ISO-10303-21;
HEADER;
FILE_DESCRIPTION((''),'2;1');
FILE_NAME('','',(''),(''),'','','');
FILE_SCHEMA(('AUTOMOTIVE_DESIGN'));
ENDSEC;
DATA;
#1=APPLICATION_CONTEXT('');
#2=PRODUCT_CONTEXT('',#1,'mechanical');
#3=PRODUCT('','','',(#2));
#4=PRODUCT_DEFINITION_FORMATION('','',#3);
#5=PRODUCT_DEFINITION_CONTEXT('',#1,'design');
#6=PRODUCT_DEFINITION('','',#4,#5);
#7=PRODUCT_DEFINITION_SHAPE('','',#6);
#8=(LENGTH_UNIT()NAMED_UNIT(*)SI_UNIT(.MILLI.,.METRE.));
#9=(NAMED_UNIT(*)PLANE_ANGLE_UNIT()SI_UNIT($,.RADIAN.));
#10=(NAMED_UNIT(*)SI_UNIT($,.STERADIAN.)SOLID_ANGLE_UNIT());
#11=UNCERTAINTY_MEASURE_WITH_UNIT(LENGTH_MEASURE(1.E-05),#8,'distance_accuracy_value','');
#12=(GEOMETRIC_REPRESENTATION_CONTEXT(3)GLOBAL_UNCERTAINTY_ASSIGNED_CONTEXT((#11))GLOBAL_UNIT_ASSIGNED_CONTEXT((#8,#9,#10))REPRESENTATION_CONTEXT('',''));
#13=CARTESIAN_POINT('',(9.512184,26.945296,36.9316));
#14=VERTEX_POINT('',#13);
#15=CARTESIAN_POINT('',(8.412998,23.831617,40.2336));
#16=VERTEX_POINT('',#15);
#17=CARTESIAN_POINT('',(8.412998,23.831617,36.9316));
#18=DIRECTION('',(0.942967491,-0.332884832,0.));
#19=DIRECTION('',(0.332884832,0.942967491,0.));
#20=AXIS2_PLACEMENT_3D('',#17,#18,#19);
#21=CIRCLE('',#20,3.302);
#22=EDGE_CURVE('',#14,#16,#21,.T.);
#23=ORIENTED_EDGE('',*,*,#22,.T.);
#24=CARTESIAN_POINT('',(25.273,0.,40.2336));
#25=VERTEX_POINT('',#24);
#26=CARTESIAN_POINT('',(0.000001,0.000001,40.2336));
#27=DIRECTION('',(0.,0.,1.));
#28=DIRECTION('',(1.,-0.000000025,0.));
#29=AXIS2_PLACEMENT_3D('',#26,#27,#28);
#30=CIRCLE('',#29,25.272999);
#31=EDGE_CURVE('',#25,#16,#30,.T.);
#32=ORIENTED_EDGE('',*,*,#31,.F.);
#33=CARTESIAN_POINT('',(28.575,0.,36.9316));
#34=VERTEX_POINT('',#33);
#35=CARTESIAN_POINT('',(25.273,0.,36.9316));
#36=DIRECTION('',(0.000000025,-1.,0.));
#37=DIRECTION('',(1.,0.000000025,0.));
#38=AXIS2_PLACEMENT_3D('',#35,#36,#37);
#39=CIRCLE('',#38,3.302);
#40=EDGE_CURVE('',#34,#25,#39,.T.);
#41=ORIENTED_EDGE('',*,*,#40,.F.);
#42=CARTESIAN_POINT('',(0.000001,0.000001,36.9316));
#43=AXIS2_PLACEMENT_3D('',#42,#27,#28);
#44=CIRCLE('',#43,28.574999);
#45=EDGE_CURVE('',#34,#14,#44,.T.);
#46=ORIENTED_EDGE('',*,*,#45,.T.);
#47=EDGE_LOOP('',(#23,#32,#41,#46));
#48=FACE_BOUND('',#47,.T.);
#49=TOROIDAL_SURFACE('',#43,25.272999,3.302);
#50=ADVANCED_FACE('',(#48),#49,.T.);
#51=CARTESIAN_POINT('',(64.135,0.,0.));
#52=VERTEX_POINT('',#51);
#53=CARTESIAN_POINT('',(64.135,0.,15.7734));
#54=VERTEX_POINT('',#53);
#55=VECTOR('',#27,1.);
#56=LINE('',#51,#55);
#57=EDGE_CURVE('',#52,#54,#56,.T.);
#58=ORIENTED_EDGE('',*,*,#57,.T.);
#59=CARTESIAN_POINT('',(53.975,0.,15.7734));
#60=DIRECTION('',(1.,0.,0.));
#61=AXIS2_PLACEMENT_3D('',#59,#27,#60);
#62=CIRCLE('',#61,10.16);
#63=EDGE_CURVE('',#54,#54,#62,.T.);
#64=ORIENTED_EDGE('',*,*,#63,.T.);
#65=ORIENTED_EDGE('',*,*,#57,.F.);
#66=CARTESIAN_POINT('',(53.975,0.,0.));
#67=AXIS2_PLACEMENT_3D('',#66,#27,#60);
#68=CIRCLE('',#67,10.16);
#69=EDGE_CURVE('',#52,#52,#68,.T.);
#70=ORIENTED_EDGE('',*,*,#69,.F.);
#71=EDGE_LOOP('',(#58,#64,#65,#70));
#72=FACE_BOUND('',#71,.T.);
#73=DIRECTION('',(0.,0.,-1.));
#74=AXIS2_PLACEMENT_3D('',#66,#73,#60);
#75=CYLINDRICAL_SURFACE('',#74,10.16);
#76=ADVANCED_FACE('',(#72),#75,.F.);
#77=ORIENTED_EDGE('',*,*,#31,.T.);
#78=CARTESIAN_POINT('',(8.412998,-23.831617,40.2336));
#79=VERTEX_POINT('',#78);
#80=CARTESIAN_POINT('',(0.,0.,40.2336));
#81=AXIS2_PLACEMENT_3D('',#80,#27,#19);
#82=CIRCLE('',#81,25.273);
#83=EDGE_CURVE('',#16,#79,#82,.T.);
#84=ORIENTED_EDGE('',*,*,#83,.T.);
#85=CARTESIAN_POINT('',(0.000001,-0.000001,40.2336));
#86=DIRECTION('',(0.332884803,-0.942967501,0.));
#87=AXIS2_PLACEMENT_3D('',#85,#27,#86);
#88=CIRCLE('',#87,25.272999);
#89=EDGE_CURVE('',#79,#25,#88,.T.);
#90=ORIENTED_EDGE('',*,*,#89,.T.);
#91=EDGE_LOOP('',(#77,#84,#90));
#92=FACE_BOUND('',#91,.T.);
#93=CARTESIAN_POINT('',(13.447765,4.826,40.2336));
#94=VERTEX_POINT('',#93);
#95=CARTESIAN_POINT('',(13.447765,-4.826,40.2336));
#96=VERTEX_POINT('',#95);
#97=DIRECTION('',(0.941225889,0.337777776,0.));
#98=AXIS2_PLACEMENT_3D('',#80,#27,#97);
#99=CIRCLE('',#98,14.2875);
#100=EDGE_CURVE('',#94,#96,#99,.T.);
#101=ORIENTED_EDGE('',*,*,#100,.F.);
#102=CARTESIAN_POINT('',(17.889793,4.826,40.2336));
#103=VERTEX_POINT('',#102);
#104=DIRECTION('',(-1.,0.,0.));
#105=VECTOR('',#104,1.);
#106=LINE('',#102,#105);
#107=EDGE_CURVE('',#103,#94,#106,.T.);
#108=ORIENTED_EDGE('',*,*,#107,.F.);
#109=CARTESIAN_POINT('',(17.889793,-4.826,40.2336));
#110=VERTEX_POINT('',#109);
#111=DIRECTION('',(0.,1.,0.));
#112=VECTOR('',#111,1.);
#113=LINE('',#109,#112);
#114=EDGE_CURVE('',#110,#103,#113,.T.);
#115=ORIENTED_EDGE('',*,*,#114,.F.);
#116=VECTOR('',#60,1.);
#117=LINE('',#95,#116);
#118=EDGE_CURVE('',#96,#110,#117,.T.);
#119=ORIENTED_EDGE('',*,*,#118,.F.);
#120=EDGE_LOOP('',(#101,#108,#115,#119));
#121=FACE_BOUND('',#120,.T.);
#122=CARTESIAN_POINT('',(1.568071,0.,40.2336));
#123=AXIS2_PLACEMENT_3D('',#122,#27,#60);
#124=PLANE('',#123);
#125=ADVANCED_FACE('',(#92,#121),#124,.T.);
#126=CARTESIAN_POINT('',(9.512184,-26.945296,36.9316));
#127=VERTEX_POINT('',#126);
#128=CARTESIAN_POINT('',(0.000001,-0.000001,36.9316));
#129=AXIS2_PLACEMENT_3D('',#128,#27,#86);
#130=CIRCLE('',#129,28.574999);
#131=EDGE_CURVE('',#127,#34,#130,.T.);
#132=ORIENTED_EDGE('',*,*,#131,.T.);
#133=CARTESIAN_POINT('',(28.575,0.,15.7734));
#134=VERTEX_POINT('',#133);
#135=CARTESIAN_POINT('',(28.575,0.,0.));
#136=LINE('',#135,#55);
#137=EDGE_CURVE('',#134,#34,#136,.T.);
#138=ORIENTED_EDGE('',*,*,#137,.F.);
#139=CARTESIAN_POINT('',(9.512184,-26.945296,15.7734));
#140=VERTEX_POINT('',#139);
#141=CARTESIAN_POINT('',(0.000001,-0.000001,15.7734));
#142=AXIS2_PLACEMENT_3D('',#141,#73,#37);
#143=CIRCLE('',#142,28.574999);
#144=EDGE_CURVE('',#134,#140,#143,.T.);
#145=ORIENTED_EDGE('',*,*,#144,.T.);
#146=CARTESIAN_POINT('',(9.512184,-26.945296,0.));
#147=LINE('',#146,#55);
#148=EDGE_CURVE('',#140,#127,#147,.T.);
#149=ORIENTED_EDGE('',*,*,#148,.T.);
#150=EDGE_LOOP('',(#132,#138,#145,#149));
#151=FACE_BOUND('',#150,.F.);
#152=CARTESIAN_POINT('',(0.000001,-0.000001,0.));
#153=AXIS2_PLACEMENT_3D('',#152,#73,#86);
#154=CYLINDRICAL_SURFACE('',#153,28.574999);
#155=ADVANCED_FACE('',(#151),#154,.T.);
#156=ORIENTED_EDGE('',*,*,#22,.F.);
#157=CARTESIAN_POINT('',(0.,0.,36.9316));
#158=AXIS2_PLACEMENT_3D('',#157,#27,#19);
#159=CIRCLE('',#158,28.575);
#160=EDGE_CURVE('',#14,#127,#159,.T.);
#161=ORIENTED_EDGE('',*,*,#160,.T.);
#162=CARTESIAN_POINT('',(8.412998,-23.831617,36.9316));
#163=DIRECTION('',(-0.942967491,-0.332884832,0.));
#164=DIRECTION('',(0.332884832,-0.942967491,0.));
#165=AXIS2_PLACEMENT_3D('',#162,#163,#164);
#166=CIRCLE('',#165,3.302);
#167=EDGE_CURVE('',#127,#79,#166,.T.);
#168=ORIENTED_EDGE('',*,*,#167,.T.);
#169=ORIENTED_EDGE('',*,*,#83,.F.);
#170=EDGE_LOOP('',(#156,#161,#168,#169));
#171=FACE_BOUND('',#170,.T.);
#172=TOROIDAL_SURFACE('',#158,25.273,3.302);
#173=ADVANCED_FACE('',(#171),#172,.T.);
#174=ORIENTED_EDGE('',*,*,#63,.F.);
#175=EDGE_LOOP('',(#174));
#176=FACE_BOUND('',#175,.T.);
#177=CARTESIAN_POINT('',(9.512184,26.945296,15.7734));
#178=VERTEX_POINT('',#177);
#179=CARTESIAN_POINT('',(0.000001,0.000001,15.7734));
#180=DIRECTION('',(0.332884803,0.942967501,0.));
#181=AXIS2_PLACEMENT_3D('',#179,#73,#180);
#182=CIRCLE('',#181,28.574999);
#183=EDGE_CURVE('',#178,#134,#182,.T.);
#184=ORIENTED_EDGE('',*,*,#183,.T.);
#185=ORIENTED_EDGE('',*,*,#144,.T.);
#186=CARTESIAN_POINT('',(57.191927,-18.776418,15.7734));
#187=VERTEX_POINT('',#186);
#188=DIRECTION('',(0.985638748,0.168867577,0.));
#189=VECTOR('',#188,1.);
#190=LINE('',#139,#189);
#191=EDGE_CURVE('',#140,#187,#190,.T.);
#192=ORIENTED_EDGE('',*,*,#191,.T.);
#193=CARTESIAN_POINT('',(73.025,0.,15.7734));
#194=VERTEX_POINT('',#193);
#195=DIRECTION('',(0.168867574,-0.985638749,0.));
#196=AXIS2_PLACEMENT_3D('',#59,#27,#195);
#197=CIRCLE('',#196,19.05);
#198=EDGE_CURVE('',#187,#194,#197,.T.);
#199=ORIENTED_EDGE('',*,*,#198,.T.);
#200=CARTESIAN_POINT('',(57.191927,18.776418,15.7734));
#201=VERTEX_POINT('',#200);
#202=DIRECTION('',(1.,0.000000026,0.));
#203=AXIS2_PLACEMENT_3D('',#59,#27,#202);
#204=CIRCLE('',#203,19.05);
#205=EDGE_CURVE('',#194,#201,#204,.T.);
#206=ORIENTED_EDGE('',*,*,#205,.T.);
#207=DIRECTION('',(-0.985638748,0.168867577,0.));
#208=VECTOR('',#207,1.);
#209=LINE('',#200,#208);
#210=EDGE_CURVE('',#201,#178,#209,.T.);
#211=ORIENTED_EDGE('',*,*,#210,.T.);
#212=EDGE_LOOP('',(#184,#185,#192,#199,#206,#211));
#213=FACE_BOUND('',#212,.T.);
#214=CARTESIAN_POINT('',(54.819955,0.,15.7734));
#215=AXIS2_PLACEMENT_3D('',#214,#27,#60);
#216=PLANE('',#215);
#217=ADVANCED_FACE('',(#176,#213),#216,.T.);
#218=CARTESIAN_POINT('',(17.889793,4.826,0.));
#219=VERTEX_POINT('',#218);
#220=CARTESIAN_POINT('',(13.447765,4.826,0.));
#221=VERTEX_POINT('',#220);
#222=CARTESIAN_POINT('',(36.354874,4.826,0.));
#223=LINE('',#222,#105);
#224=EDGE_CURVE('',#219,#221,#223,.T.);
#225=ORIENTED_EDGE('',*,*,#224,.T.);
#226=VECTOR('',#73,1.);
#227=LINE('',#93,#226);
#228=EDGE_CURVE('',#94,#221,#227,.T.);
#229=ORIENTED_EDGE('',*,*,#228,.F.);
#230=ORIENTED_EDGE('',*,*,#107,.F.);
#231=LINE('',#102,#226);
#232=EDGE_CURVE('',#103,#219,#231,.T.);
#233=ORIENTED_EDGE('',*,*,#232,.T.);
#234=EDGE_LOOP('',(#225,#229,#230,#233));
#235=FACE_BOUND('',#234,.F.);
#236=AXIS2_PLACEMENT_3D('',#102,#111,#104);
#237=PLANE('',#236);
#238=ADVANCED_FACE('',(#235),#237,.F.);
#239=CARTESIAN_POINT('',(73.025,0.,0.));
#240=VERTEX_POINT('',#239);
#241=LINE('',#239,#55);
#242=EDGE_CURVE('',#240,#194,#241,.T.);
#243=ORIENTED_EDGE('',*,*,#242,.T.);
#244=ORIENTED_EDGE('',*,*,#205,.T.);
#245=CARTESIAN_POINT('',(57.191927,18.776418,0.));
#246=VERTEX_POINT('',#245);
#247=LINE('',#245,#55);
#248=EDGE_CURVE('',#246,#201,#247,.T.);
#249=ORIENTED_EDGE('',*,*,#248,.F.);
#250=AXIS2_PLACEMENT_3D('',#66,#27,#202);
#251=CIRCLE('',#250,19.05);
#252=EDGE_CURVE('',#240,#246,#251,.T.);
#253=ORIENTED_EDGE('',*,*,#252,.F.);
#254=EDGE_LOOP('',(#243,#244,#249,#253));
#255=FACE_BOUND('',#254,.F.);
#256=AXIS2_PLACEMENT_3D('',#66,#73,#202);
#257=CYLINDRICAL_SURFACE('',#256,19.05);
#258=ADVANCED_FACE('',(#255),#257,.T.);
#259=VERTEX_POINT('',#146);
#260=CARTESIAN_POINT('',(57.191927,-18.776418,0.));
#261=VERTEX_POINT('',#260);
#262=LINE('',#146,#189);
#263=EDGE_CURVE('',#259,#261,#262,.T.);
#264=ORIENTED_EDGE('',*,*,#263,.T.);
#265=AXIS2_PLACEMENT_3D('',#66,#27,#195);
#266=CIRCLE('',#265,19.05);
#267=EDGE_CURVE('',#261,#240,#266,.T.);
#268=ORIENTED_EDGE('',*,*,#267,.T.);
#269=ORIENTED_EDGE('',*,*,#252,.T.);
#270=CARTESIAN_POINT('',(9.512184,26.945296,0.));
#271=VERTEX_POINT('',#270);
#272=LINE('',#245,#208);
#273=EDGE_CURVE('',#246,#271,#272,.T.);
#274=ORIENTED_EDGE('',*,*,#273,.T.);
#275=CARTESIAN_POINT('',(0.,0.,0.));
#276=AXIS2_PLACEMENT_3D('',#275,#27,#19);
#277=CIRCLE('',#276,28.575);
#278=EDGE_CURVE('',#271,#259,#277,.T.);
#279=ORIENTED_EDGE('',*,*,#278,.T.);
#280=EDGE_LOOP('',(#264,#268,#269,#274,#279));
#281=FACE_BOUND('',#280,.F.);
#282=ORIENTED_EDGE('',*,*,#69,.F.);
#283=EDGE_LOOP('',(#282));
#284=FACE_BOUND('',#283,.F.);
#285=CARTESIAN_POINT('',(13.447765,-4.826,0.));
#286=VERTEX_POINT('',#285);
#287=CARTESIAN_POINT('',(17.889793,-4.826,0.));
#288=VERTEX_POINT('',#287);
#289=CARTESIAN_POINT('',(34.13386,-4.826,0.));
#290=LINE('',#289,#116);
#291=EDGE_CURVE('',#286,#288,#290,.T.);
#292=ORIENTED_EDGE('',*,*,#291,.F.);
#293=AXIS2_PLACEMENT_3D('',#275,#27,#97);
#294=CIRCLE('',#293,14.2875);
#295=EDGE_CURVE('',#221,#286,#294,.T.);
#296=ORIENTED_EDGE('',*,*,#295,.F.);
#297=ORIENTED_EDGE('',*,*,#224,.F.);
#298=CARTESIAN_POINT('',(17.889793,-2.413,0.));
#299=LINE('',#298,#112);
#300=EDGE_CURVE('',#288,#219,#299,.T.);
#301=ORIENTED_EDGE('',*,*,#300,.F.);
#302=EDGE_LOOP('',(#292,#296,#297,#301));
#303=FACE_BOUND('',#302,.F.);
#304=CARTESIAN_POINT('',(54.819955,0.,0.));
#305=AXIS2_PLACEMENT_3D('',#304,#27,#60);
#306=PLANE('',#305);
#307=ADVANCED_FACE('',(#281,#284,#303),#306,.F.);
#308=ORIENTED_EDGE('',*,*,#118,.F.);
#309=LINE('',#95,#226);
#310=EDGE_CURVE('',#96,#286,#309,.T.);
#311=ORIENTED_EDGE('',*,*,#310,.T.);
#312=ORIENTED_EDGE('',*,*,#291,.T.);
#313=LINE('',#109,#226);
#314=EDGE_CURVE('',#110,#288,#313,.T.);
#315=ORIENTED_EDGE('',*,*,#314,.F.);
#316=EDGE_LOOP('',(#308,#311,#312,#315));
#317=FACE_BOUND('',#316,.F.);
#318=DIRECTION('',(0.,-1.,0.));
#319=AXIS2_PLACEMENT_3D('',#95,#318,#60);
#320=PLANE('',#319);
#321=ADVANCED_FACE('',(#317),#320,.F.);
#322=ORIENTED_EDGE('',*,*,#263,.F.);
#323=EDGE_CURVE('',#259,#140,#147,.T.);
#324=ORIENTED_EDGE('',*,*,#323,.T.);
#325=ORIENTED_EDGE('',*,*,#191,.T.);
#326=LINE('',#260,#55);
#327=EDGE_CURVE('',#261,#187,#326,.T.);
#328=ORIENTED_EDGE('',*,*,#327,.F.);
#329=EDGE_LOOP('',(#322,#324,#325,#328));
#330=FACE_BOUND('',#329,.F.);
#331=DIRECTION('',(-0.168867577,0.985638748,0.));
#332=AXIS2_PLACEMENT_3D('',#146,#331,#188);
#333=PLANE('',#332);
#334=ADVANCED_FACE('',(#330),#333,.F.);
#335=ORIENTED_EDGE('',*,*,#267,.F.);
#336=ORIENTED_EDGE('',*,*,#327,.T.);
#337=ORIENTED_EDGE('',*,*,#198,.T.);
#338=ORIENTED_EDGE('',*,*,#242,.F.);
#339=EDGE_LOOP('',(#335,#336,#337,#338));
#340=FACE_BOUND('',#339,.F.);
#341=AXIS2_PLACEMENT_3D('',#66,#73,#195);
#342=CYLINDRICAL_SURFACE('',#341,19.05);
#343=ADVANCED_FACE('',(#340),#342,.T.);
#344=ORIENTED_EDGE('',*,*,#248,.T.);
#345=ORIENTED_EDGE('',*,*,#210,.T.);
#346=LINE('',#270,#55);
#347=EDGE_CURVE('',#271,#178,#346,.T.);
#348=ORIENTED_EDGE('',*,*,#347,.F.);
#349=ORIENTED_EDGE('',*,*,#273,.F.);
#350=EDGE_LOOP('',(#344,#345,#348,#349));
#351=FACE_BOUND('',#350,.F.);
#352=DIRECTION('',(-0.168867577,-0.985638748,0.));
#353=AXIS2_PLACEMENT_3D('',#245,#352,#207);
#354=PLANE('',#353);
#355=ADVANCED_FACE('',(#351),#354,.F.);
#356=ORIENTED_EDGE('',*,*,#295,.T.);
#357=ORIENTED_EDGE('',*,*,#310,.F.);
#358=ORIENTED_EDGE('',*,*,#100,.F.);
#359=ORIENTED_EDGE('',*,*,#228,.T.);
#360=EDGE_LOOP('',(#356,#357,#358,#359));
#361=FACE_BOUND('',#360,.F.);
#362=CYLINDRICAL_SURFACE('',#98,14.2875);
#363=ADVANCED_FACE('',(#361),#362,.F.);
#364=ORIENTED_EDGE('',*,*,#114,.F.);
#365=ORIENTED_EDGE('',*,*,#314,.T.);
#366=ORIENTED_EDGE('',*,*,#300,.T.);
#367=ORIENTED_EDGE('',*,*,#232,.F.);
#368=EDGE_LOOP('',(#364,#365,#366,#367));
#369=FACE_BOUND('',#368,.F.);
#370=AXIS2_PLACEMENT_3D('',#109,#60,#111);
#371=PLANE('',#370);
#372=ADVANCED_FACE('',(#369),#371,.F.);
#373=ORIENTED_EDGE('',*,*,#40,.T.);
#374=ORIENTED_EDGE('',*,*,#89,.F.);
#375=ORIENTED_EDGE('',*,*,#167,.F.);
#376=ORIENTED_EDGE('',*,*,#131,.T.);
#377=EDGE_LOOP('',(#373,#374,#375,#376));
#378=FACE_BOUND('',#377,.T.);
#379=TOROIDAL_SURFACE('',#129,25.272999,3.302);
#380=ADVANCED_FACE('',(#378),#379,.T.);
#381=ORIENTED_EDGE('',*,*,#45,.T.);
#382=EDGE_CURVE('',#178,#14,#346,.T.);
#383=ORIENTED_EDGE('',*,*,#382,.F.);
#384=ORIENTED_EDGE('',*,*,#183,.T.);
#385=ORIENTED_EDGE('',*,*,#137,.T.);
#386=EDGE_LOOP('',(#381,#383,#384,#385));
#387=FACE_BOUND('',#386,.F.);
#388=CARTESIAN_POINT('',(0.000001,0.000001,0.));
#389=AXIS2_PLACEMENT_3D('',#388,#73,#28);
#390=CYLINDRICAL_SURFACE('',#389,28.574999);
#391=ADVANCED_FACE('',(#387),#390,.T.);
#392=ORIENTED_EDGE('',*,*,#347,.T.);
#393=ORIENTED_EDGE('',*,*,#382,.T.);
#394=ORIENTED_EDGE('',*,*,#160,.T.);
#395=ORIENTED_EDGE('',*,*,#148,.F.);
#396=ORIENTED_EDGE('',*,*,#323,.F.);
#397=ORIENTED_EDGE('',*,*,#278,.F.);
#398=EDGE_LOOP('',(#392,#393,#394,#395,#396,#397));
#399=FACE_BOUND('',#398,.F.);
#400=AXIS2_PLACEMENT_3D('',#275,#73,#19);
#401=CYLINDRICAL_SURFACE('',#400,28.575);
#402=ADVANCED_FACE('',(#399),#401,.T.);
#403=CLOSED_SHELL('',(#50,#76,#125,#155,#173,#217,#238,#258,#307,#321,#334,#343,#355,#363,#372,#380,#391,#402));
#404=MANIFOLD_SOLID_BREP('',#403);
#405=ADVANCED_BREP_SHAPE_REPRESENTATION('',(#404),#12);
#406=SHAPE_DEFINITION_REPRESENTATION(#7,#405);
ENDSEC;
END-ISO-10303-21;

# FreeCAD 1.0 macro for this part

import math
import FreeCAD as App
import Part
import Sketcher

V = App.Vector
Q = App.Units.Quantity


def edges_at(feature, points):
    """Names of the edges that pass closest to the given points."""
    edges = feature.Shape.Edges
    near = lambda p: min(range(len(edges)), key=lambda i: edges[i].distToShape(Part.Vertex(*p))[0])
    return sorted({f"Edge{near(p) + 1}" for p in points})

doc = App.newDocument("Part")
body = doc.addObject("PartDesign::Body", "Body")

# Sketch on XY plane
sketch1 = doc.addObject("Sketcher::SketchObject", "Sketch")
body.addObject(sketch1)
sketch1.AttachmentSupport = (doc.XY_Plane, [""])
sketch1.MapMode = "FlatFace"
sketch1.addGeometry(Part.ArcOfCircle(Part.Circle(V(0, 0, 0), V(0, 0, 1), 29), math.radians(-71), math.radians(0)), False)
sketch1.addGeometry(Part.ArcOfCircle(Part.Circle(V(0, 0, 0), V(0, 0, 1), 29), math.radians(0), math.radians(71)), False)
sketch1.addGeometry(Part.ArcOfCircle(Part.Circle(V(0, 0, 0), V(0, 0, 1), 29), math.radians(71), math.radians(289)), False)
sketch1.addConstraint(Sketcher.Constraint("Tangent", 0, 2, 1, 1))
sketch1.addConstraint(Sketcher.Constraint("Tangent", 1, 2, 2, 1))
sketch1.addConstraint(Sketcher.Constraint("Tangent", 2, 2, 0, 1))
sketch1.addConstraint(Sketcher.Constraint("Coincident", 0, 3, -1, 1))
sketch1.addConstraint(Sketcher.Constraint("PointOnObject", 0, 2, -1))
sketch1.addConstraint(Sketcher.Constraint("Vertical", 1, 2, 2, 2))
sketch1.addConstraint(Sketcher.Constraint("Radius", 0, Q("1.125 in")))
sketch1.addConstraint(Sketcher.Constraint("DistanceY", 2, 2, 1, 2, 53.890592))
pad1 = doc.addObject("PartDesign::Pad", "Pad")
body.addObject(pad1)
pad1.Profile = sketch1
pad1.Length = Q("1.584 in")

# Sketch on XY plane
sketch2 = doc.addObject("Sketcher::SketchObject", "Sketch001")
body.addObject(sketch2)
sketch2.AttachmentSupport = (doc.XY_Plane, [""])
sketch2.MapMode = "FlatFace"
sketch2.addGeometry(Part.ArcOfCircle(Part.Circle(V(54, 0, 0), V(0, 0, 1), 19), math.radians(-80), math.radians(0)), False)
sketch2.addGeometry(Part.ArcOfCircle(Part.Circle(V(54, 0, 0), V(0, 0, 1), 19), math.radians(0), math.radians(80)), False)
sketch2.addGeometry(Part.LineSegment(V(57, 19, 0), V(10, 27, 0)), False)
sketch2.addGeometry(Part.ArcOfCircle(Part.Circle(V(0, 0, 0), V(0, 0, 1), 29), math.radians(0), math.radians(71)), False)
sketch2.addGeometry(Part.ArcOfCircle(Part.Circle(V(0, 0, 0), V(0, 0, 1), 29), math.radians(-71), math.radians(0)), False)
sketch2.addGeometry(Part.LineSegment(V(10, -27, 0), V(57, -19, 0)), False)
sketch2.addGeometry(Part.Circle(V(54, 0, 0), V(0, 0, 1), 10), False)
sketch2.addConstraint(Sketcher.Constraint("Tangent", 0, 2, 1, 1))
sketch2.addConstraint(Sketcher.Constraint("Tangent", 1, 2, 2, 1))
sketch2.addConstraint(Sketcher.Constraint("Coincident", 2, 2, 3, 2))
sketch2.addConstraint(Sketcher.Constraint("Tangent", 3, 1, 4, 2))
sketch2.addConstraint(Sketcher.Constraint("Coincident", 4, 1, 5, 1))
sketch2.addConstraint(Sketcher.Constraint("Tangent", 5, 2, 0, 1))
sketch2.addConstraint(Sketcher.Constraint("Coincident", 3, 3, -1, 1))
sketch2.addConstraint(Sketcher.Constraint("Coincident", 6, 3, 0, 3))
sketch2.addConstraint(Sketcher.Constraint("Equal", 0, 1))
sketch2.addConstraint(Sketcher.Constraint("Equal", 3, 4))
sketch2.addConstraint(Sketcher.Constraint("Symmetric", 1, 2, 5, 2, -1))
sketch2.addConstraint(Sketcher.Constraint("PointOnObject", 0, 2, -1))
sketch2.addConstraint(Sketcher.Constraint("PointOnObject", 3, 1, -1))
sketch2.addConstraint(Sketcher.Constraint("Diameter", 6, Q("0.8 in")))
sketch2.addConstraint(Sketcher.Constraint("Radius", 0, Q("0.75 in")))
sketch2.addConstraint(Sketcher.Constraint("Radius", 3, Q("1.125 in")))
sketch2.addConstraint(Sketcher.Constraint("DistanceX", 3, 1, 0, 3, Q("1 in")))
sketch2.addConstraint(Sketcher.Constraint("Distance", 2, 48.374461))
pad2 = doc.addObject("PartDesign::Pad", "Pad001")
body.addObject(pad2)
pad2.Profile = sketch2
pad2.Length = Q("0.621 in")

# Sketch on XY plane
sketch3 = doc.addObject("Sketcher::SketchObject", "Sketch002")
body.addObject(sketch3)
sketch3.AttachmentSupport = (doc.XY_Plane, [""])
sketch3.MapMode = "FlatFace"
sketch3.AttachmentOffset = App.Placement(V(0, 0, 1.584 * 25.4), App.Rotation())
sketch3.addGeometry(Part.LineSegment(V(17.9, 4.8, 0), V(13.4, 4.8, 0)), False)
sketch3.addGeometry(Part.ArcOfCircle(Part.Circle(V(0, 0, 0), V(0, 0, 1), 14.3), math.radians(20), math.radians(340)), False)
sketch3.addGeometry(Part.LineSegment(V(13.4, -4.8, 0), V(17.9, -4.8, 0)), False)
sketch3.addGeometry(Part.LineSegment(V(17.9, -4.8, 0), V(17.9, 4.8, 0)), False)
sketch3.addConstraint(Sketcher.Constraint("Coincident", 0, 2, 1, 1))
sketch3.addConstraint(Sketcher.Constraint("Coincident", 1, 2, 2, 1))
sketch3.addConstraint(Sketcher.Constraint("Coincident", 2, 2, 3, 1))
sketch3.addConstraint(Sketcher.Constraint("Coincident", 3, 2, 0, 1))
sketch3.addConstraint(Sketcher.Constraint("Horizontal", 0))
sketch3.addConstraint(Sketcher.Constraint("Horizontal", 2))
sketch3.addConstraint(Sketcher.Constraint("Vertical", 3))
sketch3.addConstraint(Sketcher.Constraint("Coincident", 1, 3, -1, 1))
sketch3.addConstraint(Sketcher.Constraint("Vertical", 0, 2, 1, 2))
sketch3.addConstraint(Sketcher.Constraint("Radius", 1, Q("0.5625 in")))
sketch3.addConstraint(Sketcher.Constraint("DistanceY", 3, 1, 3, 2, Q("0.38 in")))
sketch3.addConstraint(Sketcher.Constraint("DistanceX", 0, 2, 0, 1, 4.442028))
pocket1 = doc.addObject("PartDesign::Pocket", "Pocket")
body.addObject(pocket1)
pocket1.Profile = sketch3
pocket1.Type = "ThroughAll"
doc.recompute()

fillet = doc.addObject("PartDesign::Fillet", "Fillet")
body.addObject(fillet)
fillet.Base = (pocket1, edges_at(pocket1, [(-28.575, 0, 40.234)]))
fillet.Radius = Q("0.13 in")

doc.recompute()
